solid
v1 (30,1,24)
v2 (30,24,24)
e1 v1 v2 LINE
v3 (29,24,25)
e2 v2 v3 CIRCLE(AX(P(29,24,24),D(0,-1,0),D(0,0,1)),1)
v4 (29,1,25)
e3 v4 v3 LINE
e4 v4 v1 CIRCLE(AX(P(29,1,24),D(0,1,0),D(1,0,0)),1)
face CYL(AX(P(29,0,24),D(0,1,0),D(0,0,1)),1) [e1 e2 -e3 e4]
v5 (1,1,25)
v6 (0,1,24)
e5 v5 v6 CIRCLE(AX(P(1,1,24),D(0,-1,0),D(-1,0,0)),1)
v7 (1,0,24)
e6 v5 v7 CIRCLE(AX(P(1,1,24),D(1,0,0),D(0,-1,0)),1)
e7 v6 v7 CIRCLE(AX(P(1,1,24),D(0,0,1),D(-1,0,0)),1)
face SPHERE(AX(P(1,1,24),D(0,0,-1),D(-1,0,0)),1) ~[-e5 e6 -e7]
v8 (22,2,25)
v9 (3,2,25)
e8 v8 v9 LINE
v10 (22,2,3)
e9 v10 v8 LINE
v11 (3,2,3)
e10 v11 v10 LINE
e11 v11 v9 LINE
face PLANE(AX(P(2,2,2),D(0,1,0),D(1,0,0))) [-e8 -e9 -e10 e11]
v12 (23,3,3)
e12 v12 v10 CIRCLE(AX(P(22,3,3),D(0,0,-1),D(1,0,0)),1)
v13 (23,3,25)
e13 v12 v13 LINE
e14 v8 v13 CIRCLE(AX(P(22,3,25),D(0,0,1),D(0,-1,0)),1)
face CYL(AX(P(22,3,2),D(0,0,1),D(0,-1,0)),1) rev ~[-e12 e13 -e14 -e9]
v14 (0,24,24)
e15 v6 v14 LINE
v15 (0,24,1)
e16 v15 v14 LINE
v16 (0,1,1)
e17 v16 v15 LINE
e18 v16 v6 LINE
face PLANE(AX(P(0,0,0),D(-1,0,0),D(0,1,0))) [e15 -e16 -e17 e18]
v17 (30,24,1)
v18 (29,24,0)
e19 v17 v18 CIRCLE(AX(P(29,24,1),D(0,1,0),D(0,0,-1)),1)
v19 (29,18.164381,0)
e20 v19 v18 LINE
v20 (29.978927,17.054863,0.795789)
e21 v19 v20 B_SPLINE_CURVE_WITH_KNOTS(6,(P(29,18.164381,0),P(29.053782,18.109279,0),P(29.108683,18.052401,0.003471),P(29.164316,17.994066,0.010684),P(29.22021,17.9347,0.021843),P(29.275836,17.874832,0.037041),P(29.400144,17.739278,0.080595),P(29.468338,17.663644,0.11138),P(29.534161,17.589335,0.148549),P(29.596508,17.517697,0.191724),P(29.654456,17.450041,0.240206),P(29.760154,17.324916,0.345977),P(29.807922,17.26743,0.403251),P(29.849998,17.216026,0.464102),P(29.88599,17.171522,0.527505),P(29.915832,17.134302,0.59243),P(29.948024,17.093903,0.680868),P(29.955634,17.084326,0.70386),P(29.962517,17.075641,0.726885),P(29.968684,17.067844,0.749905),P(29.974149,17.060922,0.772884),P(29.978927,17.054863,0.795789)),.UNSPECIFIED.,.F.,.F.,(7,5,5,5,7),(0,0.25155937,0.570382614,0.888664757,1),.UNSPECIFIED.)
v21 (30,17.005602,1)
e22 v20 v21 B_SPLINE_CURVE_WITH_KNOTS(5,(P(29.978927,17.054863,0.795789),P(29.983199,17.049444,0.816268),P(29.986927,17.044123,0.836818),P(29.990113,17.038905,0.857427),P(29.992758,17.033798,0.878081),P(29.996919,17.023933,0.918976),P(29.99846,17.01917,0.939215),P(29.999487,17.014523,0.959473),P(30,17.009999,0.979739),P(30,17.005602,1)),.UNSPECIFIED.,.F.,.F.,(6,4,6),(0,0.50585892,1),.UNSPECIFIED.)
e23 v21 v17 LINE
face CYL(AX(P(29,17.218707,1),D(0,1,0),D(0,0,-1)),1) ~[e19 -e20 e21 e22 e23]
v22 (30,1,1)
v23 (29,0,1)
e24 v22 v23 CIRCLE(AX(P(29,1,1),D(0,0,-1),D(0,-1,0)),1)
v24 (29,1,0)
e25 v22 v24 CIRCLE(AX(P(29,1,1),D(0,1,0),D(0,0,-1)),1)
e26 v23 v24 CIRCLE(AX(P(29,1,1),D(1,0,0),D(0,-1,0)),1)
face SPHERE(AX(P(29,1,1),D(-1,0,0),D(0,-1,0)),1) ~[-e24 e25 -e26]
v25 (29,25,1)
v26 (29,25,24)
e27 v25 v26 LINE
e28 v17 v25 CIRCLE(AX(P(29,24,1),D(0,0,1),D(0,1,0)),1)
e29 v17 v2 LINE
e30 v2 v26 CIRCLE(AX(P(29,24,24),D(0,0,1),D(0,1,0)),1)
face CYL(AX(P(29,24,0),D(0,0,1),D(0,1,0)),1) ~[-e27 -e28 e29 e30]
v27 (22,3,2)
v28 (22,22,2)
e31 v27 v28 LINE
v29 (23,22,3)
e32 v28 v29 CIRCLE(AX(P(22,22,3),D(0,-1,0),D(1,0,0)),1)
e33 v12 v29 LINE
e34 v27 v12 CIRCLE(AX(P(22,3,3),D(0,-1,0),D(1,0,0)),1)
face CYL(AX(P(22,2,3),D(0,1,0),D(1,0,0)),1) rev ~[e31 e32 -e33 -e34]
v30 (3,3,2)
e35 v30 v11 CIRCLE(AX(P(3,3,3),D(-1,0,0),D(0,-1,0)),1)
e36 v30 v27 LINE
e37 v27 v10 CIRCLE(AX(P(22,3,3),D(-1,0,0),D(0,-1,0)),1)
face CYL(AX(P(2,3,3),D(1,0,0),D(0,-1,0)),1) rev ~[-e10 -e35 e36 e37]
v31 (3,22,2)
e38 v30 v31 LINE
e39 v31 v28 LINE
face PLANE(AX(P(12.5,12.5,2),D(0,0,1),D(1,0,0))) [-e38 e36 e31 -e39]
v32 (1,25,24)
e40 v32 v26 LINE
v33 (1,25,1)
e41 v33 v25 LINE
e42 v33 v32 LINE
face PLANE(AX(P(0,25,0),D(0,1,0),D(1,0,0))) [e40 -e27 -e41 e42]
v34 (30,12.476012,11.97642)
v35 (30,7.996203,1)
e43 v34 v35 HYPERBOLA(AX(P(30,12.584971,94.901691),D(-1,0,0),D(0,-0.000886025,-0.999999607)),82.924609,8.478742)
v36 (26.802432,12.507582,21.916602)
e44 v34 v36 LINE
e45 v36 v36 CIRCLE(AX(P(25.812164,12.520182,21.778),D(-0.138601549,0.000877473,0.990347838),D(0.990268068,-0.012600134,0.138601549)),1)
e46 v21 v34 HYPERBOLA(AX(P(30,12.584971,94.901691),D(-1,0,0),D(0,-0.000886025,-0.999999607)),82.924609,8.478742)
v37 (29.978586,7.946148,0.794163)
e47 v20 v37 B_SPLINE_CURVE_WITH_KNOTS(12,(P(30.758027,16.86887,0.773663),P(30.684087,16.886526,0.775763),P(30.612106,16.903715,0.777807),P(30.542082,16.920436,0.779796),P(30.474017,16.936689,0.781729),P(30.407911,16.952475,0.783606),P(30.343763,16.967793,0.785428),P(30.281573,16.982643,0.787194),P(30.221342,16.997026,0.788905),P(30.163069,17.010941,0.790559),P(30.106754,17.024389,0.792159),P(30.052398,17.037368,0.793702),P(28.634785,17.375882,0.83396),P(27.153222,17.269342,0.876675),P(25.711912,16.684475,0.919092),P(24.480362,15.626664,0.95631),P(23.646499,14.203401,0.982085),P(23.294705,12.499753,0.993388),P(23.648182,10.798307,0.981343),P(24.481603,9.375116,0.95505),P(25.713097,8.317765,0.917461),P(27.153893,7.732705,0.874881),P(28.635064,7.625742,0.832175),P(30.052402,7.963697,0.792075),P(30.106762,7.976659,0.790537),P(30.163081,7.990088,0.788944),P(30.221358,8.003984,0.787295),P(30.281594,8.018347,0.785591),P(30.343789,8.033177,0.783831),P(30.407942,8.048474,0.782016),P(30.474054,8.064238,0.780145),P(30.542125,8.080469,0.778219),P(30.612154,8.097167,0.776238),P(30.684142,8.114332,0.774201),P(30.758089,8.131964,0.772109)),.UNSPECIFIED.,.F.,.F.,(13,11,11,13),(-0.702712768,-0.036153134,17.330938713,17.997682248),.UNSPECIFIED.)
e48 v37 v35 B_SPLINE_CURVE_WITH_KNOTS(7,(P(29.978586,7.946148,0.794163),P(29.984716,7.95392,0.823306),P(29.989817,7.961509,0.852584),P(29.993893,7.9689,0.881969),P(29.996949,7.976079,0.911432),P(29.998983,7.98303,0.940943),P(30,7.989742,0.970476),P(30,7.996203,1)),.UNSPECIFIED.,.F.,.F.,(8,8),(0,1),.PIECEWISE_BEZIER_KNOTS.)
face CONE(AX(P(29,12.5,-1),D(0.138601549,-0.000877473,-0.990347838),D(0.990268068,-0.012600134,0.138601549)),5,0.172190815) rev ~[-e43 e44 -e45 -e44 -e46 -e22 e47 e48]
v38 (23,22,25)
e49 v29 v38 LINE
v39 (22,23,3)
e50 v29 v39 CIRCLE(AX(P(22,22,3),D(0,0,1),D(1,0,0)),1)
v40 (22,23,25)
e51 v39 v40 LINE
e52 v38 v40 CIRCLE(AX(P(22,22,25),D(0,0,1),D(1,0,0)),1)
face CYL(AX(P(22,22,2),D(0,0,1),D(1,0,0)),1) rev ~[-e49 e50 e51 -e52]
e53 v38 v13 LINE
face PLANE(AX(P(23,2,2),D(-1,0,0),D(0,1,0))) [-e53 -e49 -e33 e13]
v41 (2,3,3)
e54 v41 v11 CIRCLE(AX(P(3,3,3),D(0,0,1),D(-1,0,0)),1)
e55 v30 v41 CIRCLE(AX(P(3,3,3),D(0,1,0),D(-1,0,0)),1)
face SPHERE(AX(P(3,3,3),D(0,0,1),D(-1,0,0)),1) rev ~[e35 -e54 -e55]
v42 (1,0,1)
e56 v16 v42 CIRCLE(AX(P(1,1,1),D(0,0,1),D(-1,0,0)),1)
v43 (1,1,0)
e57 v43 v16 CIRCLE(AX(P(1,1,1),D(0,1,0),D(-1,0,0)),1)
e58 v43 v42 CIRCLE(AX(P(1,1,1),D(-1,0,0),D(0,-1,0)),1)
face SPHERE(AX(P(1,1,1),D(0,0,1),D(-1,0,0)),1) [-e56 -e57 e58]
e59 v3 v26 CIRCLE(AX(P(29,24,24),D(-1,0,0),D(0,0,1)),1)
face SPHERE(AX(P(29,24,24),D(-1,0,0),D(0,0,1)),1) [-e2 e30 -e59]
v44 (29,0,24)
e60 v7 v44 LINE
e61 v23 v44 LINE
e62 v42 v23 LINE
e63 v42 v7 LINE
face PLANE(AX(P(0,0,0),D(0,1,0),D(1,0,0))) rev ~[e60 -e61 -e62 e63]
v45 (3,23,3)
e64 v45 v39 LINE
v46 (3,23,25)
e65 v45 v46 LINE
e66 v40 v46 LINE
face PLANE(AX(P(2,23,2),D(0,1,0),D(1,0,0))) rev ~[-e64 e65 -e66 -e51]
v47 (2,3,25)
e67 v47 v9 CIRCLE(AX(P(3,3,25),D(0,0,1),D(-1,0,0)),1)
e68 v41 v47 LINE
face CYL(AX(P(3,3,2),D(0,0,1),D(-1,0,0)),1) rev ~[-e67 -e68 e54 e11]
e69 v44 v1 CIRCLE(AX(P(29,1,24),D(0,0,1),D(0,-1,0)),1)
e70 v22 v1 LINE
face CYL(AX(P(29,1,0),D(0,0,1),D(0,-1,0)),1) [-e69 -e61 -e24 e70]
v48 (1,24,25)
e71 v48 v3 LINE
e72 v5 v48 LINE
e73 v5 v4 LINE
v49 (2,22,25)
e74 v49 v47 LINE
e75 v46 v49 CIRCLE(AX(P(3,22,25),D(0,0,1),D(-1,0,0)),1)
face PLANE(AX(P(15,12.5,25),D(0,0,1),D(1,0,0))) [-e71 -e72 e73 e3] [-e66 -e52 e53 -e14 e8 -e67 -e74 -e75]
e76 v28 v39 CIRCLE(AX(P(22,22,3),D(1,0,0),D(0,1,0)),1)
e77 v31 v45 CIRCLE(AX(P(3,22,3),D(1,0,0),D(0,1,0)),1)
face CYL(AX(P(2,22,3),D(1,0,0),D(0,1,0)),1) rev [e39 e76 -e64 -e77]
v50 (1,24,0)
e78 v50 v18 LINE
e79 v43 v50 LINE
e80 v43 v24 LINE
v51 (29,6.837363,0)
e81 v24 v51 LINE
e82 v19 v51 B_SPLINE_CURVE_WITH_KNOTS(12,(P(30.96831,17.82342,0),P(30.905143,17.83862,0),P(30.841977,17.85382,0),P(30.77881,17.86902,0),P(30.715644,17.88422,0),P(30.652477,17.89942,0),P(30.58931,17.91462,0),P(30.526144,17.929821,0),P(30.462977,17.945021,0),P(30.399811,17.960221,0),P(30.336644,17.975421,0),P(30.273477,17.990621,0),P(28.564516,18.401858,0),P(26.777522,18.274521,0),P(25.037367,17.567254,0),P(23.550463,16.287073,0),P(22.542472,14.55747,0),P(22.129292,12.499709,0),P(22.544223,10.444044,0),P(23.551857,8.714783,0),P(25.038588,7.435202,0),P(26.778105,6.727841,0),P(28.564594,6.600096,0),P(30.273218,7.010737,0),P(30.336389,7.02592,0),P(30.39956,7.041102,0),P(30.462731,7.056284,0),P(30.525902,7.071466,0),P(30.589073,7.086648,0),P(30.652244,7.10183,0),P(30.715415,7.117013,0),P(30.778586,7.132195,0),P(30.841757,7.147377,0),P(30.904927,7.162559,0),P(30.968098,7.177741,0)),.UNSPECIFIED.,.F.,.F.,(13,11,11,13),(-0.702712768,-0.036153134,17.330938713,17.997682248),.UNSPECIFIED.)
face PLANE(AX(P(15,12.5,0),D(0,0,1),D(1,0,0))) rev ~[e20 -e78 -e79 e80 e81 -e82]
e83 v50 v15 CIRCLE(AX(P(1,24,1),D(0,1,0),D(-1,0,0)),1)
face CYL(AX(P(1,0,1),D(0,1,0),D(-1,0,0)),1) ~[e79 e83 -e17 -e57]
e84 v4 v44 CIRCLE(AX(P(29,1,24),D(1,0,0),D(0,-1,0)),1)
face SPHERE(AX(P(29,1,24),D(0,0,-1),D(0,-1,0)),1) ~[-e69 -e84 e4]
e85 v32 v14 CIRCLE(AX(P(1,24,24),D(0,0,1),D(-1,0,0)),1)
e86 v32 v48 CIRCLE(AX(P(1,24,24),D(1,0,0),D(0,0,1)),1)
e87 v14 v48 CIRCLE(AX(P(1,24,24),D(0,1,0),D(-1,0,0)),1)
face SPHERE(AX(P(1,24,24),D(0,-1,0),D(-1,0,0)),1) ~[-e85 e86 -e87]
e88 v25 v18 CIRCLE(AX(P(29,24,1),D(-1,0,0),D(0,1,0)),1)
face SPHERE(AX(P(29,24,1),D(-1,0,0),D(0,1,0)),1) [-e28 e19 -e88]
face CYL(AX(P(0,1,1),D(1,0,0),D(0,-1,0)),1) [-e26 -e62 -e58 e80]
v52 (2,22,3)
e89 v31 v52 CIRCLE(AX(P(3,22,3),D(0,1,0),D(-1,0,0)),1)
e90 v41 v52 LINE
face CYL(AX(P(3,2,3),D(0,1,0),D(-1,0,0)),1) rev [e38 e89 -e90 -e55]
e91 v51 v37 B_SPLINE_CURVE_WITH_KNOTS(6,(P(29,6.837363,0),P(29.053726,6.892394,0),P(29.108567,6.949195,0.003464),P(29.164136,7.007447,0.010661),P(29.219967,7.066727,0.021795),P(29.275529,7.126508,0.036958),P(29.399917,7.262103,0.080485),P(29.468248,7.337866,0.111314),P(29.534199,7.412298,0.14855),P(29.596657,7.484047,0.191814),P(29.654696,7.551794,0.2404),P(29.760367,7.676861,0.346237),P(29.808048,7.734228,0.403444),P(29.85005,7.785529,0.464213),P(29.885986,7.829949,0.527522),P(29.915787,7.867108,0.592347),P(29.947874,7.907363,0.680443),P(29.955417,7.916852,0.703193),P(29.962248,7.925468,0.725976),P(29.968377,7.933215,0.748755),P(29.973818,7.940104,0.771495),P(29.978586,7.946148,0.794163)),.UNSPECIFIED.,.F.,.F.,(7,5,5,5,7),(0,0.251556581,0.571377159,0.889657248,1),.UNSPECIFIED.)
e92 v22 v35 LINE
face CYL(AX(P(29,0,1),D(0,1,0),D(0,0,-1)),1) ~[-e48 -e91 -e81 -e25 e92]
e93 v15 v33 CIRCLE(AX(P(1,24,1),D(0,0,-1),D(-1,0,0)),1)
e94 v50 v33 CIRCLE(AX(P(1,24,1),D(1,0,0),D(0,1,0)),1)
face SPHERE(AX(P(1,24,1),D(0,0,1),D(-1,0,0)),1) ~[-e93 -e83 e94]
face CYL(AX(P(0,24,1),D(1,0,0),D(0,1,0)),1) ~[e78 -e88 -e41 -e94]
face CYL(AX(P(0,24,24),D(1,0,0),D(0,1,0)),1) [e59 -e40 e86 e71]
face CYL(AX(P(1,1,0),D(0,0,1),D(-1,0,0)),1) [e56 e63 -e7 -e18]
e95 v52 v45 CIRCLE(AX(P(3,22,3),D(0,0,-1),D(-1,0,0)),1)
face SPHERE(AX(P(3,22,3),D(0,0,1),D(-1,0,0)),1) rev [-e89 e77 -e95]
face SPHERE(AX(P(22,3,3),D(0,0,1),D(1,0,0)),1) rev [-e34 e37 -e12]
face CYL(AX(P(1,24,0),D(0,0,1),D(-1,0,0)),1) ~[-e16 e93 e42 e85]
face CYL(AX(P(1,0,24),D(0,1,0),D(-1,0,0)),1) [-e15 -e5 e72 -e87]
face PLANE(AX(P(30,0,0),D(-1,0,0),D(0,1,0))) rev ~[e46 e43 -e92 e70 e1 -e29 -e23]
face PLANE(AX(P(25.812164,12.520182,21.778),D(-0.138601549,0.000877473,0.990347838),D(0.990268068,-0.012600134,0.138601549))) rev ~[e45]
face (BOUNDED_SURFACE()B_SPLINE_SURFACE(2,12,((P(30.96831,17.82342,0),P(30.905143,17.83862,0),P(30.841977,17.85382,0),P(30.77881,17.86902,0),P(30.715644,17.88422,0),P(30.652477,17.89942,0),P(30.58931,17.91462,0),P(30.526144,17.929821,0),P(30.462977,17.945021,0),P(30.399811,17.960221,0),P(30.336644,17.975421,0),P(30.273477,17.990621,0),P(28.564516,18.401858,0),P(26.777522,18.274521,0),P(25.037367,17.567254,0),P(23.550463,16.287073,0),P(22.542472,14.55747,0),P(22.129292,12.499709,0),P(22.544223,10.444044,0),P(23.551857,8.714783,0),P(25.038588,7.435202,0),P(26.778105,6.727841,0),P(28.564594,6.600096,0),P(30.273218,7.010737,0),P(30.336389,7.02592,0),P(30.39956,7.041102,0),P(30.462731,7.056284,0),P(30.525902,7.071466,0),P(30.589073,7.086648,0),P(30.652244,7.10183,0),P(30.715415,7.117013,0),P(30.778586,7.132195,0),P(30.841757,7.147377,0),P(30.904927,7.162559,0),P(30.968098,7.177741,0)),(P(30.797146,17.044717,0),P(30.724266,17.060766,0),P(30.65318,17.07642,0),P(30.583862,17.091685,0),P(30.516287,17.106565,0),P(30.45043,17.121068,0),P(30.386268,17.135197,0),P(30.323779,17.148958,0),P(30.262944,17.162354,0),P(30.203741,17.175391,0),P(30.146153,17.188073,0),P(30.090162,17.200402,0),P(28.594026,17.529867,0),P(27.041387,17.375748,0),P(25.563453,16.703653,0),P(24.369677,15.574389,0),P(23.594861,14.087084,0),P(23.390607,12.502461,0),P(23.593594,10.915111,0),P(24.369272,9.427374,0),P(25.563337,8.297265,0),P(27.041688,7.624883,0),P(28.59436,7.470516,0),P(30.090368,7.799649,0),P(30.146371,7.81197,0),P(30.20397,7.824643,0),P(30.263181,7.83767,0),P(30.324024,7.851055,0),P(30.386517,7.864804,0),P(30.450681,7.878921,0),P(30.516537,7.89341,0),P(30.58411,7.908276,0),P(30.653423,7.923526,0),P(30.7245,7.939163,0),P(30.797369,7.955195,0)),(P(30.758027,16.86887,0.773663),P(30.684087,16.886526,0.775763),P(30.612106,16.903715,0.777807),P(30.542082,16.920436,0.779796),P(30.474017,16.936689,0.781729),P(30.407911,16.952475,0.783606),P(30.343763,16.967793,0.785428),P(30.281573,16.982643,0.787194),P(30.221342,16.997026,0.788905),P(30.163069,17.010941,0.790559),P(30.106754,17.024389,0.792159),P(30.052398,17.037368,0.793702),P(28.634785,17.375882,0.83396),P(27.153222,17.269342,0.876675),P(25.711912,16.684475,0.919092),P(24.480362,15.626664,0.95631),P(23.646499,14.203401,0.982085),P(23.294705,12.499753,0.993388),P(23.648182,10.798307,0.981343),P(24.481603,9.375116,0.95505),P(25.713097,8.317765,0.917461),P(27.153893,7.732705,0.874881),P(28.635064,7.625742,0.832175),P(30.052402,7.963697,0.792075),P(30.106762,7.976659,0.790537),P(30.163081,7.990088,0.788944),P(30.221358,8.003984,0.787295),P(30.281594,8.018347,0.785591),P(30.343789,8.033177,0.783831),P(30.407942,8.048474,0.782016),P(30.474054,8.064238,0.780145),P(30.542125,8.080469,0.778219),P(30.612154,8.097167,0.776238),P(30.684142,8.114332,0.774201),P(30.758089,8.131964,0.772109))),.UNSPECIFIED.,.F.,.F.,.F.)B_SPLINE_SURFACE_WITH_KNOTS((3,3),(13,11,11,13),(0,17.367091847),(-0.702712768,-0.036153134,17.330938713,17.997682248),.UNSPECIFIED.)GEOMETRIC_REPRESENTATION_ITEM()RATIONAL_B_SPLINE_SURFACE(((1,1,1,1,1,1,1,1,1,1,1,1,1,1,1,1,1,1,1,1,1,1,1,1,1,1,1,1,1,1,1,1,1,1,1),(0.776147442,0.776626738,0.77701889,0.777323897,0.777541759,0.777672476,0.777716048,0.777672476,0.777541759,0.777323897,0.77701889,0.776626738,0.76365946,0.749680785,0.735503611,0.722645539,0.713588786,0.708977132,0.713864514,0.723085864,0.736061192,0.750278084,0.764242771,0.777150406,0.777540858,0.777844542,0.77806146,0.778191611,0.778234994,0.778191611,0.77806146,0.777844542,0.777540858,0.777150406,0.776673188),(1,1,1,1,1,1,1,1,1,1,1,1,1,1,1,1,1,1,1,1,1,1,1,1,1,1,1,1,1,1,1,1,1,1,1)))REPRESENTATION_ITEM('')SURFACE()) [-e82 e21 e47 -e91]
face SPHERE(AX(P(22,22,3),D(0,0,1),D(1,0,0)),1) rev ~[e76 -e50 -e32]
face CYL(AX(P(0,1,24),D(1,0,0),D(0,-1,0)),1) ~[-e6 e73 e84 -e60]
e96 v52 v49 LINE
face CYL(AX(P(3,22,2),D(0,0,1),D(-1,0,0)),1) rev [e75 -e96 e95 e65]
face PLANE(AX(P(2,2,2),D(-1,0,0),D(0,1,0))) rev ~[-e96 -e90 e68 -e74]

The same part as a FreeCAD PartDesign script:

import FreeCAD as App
import Part
import Sketcher
from FreeCAD import Vector
Q = App.Units.Quantity


def edges_at(feature, points):
    """Names of the edges that pass closest to the given points."""
    edges = feature.Shape.Edges
    near = lambda p: min(range(len(edges)), key=lambda i: edges[i].distToShape(Part.Vertex(*p))[0])
    return sorted({f"Edge{near(p) + 1}" for p in points})

doc = App.newDocument("Part")
params = doc.addObject("Spreadsheet::Sheet", "Params")
for row, (alias, value) in enumerate([
    ("sketch1_width", "21 mm"),
    ("pad1_length", "24 mm"),
    ("fillet_radius", "1 mm"),
    ("sketch2_width", "5 mm"),
    ("sketch2_width2", "1 mm"),
    ("sketch2_height", "23 mm"),
    ("revolution_angle", "360 deg"),
    ("sketch3_width", "30 mm"),
    ("sketch3_height", "25 mm"),
    ("pad2_length", "25 mm"),
    ("fillet2_radius", "1 mm"),
], start=1):
    params.set(f"A{row}", alias)
    params.set(f"B{row}", "=" + value)
    params.setAlias(f"B{row}", alias)

body = doc.addObject("PartDesign::Body", "Body")

# Sketch on XY plane
sketch1 = body.newObject("Sketcher::SketchObject", "Sketch")
sketch1.AttachmentSupport = (doc.getObject("XY_Plane"), [""])
sketch1.MapMode = "FlatFace"
sketch1.AttachmentOffset = App.Placement(Vector(0, 0, 2), App.Rotation())
sketch1.addGeometry([
    Part.LineSegment(Vector(2, 23, 0), Vector(2, 2, 0)),
    Part.LineSegment(Vector(2, 2, 0), Vector(23, 2, 0)),
    Part.LineSegment(Vector(23, 2, 0), Vector(23, 23, 0)),
    Part.LineSegment(Vector(23, 23, 0), Vector(2, 23, 0)),
], False)
sketch1.addConstraint([
    Sketcher.Constraint("Coincident", 0, 2, 1, 1),
    Sketcher.Constraint("Coincident", 1, 2, 2, 1),
    Sketcher.Constraint("Coincident", 2, 2, 3, 1),
    Sketcher.Constraint("Coincident", 3, 2, 0, 1),
    Sketcher.Constraint("Vertical", 0),
    Sketcher.Constraint("Horizontal", 1),
    Sketcher.Constraint("Vertical", 2),
    Sketcher.Constraint("Horizontal", 3),
    Sketcher.Constraint("Equal", 3, 0),
    Sketcher.Constraint("DistanceX", 1, 1, 1, 2, Q("21 mm")),
    Sketcher.Constraint("DistanceX", -1, 1, 0, 2, Q("2 mm")),
    Sketcher.Constraint("DistanceY", -1, 1, 0, 2, Q("2 mm")),
])
sketch1.setExpression("Constraints[9]", "Params.sketch1_width")
pad1 = body.newObject("PartDesign::Pad", "Pad")
pad1.Profile = sketch1
pad1.setExpression("Length", "Params.pad1_length")
doc.recompute()

fillet = body.newObject("PartDesign::Fillet", "Fillet")
fillet.Base = (pad1, edges_at(pad1, [
    (2, 2, 14),
    (2, 23, 14),
    (2, 12.5, 2),
    (23, 2, 14),
    (23, 23, 14),
    (23, 12.5, 2),
    (12.5, 2, 2),
    (12.5, 23, 2),
]))
fillet.setExpression("Radius", "Params.fillet_radius")
body2 = doc.addObject("PartDesign::Body", "Body001")

# Sketch on XZ plane
sketch2 = body2.newObject("Sketcher::SketchObject", "Sketch001")
sketch2.AttachmentSupport = (doc.getObject("XZ_Plane001"), [""])
sketch2.MapMode = "FlatFace"
sketch2.addGeometry([
    Part.LineSegment(Vector(0, 0, 0), Vector(5, 0, 0)),
    Part.LineSegment(Vector(5, 0, 0), Vector(1, 23, 0)),
    Part.LineSegment(Vector(1, 23, 0), Vector(0, 23, 0)),
    Part.LineSegment(Vector(0, 23, 0), Vector(0, 0, 0)),
], False)
sketch2.addConstraint([
    Sketcher.Constraint("Coincident", 0, 2, 1, 1),
    Sketcher.Constraint("Coincident", 1, 2, 2, 1),
    Sketcher.Constraint("Coincident", 2, 2, 3, 1),
    Sketcher.Constraint("Coincident", 3, 2, 0, 1),
    Sketcher.Constraint("Horizontal", 0),
    Sketcher.Constraint("Horizontal", 2),
    Sketcher.Constraint("Vertical", 3),
    Sketcher.Constraint("Coincident", 3, 2, -1, 1),
    Sketcher.Constraint("DistanceX", 0, 1, 0, 2, Q("5 mm")),
    Sketcher.Constraint("DistanceX", 2, 2, 2, 1, Q("1 mm")),
    Sketcher.Constraint("DistanceY", 3, 2, 3, 1, Q("23 mm")),
])
sketch2.setExpression("Constraints[8]", "Params.sketch2_width")
sketch2.setExpression("Constraints[9]", "Params.sketch2_width2")
sketch2.setExpression("Constraints[10]", "Params.sketch2_height")
revolution = body2.newObject("PartDesign::Revolution", "Revolution")
revolution.Profile = sketch2
revolution.ReferenceAxis = (sketch2, ["V_Axis"])
revolution.setExpression("Angle", "Params.revolution_angle")
body3 = doc.addObject("PartDesign::Body", "Body002")
doc.recompute()

body2.Placement = App.Placement(Vector(0, 0, 0), App.Rotation(Vector(1, 0, 0), 0.050765))
boolean = body3.newObject("PartDesign::Boolean", "Boolean")
boolean.Type = "Fuse"
boolean.addObjects([body2])
body4 = doc.addObject("PartDesign::Body", "Body003")
doc.recompute()

body3.Placement = App.Placement(Vector(0, 0, 0), App.Rotation(Vector(0, 1, 0), 352.033068))
boolean2 = body4.newObject("PartDesign::Boolean", "Boolean001")
boolean2.Type = "Fuse"
boolean2.addObjects([body3])
body5 = doc.addObject("PartDesign::Body", "Body004")
doc.recompute()

body4.Placement = App.Placement(Vector(29, 12.5, -1), App.Rotation(Vector(0, 0, 1), 359.27101))
boolean3 = body5.newObject("PartDesign::Boolean", "Boolean002")
boolean3.Type = "Fuse"
boolean3.addObjects([body4])
body6 = doc.addObject("PartDesign::Body", "Body005")

# Sketch on XY plane
sketch3 = body6.newObject("Sketcher::SketchObject", "Sketch002")
sketch3.AttachmentSupport = (doc.getObject("XY_Plane005"), [""])
sketch3.MapMode = "FlatFace"
sketch3.addGeometry([
    Part.LineSegment(Vector(0, 25, 0), Vector(0, 0, 0)),
    Part.LineSegment(Vector(0, 0, 0), Vector(30, 0, 0)),
    Part.LineSegment(Vector(30, 0, 0), Vector(30, 25, 0)),
    Part.LineSegment(Vector(30, 25, 0), Vector(0, 25, 0)),
], False)
sketch3.addConstraint([
    Sketcher.Constraint("Coincident", 0, 2, 1, 1),
    Sketcher.Constraint("Coincident", 1, 2, 2, 1),
    Sketcher.Constraint("Coincident", 2, 2, 3, 1),
    Sketcher.Constraint("Coincident", 3, 2, 0, 1),
    Sketcher.Constraint("Vertical", 0),
    Sketcher.Constraint("Horizontal", 1),
    Sketcher.Constraint("Vertical", 2),
    Sketcher.Constraint("Horizontal", 3),
    Sketcher.Constraint("Coincident", 0, 2, -1, 1),
    Sketcher.Constraint("DistanceX", 1, 1, 1, 2, Q("30 mm")),
    Sketcher.Constraint("DistanceY", 0, 2, 0, 1, Q("25 mm")),
])
sketch3.setExpression("Constraints[9]", "Params.sketch3_width")
sketch3.setExpression("Constraints[10]", "Params.sketch3_height")
pad2 = body6.newObject("PartDesign::Pad", "Pad001")
pad2.Profile = sketch3
pad2.setExpression("Length", "Params.pad2_length")
doc.recompute()

boolean4 = body6.newObject("PartDesign::Boolean", "Boolean003")
boolean4.Type = "Cut"
boolean4.addObjects([body5])
doc.recompute()

boolean5 = body6.newObject("PartDesign::Boolean", "Boolean004")
boolean5.Type = "Cut"
boolean5.addObjects([body])
doc.recompute()

fillet2 = body6.newObject("PartDesign::Fillet", "Fillet001")
fillet2.Base = (boolean5, edges_at(boolean5, [
    (0, 0, 12.5),
    (0, 12.5, 25),
    (0, 25, 12.5),
    (0, 12.5, 0),
    (15, 0, 0),
    (30, 0, 12.5),
    (15, 0, 25),
    (15, 25, 25),
    (30, 12.5, 25),
    (15, 25, 0),
    (30, 25, 12.5),
    (30, 21.109, 0),
    (24.104, 12.5, 0),
    (30, 3.891, 0),
]))
fillet2.setExpression("Radius", "Params.fillet2_radius")

doc.recompute()
